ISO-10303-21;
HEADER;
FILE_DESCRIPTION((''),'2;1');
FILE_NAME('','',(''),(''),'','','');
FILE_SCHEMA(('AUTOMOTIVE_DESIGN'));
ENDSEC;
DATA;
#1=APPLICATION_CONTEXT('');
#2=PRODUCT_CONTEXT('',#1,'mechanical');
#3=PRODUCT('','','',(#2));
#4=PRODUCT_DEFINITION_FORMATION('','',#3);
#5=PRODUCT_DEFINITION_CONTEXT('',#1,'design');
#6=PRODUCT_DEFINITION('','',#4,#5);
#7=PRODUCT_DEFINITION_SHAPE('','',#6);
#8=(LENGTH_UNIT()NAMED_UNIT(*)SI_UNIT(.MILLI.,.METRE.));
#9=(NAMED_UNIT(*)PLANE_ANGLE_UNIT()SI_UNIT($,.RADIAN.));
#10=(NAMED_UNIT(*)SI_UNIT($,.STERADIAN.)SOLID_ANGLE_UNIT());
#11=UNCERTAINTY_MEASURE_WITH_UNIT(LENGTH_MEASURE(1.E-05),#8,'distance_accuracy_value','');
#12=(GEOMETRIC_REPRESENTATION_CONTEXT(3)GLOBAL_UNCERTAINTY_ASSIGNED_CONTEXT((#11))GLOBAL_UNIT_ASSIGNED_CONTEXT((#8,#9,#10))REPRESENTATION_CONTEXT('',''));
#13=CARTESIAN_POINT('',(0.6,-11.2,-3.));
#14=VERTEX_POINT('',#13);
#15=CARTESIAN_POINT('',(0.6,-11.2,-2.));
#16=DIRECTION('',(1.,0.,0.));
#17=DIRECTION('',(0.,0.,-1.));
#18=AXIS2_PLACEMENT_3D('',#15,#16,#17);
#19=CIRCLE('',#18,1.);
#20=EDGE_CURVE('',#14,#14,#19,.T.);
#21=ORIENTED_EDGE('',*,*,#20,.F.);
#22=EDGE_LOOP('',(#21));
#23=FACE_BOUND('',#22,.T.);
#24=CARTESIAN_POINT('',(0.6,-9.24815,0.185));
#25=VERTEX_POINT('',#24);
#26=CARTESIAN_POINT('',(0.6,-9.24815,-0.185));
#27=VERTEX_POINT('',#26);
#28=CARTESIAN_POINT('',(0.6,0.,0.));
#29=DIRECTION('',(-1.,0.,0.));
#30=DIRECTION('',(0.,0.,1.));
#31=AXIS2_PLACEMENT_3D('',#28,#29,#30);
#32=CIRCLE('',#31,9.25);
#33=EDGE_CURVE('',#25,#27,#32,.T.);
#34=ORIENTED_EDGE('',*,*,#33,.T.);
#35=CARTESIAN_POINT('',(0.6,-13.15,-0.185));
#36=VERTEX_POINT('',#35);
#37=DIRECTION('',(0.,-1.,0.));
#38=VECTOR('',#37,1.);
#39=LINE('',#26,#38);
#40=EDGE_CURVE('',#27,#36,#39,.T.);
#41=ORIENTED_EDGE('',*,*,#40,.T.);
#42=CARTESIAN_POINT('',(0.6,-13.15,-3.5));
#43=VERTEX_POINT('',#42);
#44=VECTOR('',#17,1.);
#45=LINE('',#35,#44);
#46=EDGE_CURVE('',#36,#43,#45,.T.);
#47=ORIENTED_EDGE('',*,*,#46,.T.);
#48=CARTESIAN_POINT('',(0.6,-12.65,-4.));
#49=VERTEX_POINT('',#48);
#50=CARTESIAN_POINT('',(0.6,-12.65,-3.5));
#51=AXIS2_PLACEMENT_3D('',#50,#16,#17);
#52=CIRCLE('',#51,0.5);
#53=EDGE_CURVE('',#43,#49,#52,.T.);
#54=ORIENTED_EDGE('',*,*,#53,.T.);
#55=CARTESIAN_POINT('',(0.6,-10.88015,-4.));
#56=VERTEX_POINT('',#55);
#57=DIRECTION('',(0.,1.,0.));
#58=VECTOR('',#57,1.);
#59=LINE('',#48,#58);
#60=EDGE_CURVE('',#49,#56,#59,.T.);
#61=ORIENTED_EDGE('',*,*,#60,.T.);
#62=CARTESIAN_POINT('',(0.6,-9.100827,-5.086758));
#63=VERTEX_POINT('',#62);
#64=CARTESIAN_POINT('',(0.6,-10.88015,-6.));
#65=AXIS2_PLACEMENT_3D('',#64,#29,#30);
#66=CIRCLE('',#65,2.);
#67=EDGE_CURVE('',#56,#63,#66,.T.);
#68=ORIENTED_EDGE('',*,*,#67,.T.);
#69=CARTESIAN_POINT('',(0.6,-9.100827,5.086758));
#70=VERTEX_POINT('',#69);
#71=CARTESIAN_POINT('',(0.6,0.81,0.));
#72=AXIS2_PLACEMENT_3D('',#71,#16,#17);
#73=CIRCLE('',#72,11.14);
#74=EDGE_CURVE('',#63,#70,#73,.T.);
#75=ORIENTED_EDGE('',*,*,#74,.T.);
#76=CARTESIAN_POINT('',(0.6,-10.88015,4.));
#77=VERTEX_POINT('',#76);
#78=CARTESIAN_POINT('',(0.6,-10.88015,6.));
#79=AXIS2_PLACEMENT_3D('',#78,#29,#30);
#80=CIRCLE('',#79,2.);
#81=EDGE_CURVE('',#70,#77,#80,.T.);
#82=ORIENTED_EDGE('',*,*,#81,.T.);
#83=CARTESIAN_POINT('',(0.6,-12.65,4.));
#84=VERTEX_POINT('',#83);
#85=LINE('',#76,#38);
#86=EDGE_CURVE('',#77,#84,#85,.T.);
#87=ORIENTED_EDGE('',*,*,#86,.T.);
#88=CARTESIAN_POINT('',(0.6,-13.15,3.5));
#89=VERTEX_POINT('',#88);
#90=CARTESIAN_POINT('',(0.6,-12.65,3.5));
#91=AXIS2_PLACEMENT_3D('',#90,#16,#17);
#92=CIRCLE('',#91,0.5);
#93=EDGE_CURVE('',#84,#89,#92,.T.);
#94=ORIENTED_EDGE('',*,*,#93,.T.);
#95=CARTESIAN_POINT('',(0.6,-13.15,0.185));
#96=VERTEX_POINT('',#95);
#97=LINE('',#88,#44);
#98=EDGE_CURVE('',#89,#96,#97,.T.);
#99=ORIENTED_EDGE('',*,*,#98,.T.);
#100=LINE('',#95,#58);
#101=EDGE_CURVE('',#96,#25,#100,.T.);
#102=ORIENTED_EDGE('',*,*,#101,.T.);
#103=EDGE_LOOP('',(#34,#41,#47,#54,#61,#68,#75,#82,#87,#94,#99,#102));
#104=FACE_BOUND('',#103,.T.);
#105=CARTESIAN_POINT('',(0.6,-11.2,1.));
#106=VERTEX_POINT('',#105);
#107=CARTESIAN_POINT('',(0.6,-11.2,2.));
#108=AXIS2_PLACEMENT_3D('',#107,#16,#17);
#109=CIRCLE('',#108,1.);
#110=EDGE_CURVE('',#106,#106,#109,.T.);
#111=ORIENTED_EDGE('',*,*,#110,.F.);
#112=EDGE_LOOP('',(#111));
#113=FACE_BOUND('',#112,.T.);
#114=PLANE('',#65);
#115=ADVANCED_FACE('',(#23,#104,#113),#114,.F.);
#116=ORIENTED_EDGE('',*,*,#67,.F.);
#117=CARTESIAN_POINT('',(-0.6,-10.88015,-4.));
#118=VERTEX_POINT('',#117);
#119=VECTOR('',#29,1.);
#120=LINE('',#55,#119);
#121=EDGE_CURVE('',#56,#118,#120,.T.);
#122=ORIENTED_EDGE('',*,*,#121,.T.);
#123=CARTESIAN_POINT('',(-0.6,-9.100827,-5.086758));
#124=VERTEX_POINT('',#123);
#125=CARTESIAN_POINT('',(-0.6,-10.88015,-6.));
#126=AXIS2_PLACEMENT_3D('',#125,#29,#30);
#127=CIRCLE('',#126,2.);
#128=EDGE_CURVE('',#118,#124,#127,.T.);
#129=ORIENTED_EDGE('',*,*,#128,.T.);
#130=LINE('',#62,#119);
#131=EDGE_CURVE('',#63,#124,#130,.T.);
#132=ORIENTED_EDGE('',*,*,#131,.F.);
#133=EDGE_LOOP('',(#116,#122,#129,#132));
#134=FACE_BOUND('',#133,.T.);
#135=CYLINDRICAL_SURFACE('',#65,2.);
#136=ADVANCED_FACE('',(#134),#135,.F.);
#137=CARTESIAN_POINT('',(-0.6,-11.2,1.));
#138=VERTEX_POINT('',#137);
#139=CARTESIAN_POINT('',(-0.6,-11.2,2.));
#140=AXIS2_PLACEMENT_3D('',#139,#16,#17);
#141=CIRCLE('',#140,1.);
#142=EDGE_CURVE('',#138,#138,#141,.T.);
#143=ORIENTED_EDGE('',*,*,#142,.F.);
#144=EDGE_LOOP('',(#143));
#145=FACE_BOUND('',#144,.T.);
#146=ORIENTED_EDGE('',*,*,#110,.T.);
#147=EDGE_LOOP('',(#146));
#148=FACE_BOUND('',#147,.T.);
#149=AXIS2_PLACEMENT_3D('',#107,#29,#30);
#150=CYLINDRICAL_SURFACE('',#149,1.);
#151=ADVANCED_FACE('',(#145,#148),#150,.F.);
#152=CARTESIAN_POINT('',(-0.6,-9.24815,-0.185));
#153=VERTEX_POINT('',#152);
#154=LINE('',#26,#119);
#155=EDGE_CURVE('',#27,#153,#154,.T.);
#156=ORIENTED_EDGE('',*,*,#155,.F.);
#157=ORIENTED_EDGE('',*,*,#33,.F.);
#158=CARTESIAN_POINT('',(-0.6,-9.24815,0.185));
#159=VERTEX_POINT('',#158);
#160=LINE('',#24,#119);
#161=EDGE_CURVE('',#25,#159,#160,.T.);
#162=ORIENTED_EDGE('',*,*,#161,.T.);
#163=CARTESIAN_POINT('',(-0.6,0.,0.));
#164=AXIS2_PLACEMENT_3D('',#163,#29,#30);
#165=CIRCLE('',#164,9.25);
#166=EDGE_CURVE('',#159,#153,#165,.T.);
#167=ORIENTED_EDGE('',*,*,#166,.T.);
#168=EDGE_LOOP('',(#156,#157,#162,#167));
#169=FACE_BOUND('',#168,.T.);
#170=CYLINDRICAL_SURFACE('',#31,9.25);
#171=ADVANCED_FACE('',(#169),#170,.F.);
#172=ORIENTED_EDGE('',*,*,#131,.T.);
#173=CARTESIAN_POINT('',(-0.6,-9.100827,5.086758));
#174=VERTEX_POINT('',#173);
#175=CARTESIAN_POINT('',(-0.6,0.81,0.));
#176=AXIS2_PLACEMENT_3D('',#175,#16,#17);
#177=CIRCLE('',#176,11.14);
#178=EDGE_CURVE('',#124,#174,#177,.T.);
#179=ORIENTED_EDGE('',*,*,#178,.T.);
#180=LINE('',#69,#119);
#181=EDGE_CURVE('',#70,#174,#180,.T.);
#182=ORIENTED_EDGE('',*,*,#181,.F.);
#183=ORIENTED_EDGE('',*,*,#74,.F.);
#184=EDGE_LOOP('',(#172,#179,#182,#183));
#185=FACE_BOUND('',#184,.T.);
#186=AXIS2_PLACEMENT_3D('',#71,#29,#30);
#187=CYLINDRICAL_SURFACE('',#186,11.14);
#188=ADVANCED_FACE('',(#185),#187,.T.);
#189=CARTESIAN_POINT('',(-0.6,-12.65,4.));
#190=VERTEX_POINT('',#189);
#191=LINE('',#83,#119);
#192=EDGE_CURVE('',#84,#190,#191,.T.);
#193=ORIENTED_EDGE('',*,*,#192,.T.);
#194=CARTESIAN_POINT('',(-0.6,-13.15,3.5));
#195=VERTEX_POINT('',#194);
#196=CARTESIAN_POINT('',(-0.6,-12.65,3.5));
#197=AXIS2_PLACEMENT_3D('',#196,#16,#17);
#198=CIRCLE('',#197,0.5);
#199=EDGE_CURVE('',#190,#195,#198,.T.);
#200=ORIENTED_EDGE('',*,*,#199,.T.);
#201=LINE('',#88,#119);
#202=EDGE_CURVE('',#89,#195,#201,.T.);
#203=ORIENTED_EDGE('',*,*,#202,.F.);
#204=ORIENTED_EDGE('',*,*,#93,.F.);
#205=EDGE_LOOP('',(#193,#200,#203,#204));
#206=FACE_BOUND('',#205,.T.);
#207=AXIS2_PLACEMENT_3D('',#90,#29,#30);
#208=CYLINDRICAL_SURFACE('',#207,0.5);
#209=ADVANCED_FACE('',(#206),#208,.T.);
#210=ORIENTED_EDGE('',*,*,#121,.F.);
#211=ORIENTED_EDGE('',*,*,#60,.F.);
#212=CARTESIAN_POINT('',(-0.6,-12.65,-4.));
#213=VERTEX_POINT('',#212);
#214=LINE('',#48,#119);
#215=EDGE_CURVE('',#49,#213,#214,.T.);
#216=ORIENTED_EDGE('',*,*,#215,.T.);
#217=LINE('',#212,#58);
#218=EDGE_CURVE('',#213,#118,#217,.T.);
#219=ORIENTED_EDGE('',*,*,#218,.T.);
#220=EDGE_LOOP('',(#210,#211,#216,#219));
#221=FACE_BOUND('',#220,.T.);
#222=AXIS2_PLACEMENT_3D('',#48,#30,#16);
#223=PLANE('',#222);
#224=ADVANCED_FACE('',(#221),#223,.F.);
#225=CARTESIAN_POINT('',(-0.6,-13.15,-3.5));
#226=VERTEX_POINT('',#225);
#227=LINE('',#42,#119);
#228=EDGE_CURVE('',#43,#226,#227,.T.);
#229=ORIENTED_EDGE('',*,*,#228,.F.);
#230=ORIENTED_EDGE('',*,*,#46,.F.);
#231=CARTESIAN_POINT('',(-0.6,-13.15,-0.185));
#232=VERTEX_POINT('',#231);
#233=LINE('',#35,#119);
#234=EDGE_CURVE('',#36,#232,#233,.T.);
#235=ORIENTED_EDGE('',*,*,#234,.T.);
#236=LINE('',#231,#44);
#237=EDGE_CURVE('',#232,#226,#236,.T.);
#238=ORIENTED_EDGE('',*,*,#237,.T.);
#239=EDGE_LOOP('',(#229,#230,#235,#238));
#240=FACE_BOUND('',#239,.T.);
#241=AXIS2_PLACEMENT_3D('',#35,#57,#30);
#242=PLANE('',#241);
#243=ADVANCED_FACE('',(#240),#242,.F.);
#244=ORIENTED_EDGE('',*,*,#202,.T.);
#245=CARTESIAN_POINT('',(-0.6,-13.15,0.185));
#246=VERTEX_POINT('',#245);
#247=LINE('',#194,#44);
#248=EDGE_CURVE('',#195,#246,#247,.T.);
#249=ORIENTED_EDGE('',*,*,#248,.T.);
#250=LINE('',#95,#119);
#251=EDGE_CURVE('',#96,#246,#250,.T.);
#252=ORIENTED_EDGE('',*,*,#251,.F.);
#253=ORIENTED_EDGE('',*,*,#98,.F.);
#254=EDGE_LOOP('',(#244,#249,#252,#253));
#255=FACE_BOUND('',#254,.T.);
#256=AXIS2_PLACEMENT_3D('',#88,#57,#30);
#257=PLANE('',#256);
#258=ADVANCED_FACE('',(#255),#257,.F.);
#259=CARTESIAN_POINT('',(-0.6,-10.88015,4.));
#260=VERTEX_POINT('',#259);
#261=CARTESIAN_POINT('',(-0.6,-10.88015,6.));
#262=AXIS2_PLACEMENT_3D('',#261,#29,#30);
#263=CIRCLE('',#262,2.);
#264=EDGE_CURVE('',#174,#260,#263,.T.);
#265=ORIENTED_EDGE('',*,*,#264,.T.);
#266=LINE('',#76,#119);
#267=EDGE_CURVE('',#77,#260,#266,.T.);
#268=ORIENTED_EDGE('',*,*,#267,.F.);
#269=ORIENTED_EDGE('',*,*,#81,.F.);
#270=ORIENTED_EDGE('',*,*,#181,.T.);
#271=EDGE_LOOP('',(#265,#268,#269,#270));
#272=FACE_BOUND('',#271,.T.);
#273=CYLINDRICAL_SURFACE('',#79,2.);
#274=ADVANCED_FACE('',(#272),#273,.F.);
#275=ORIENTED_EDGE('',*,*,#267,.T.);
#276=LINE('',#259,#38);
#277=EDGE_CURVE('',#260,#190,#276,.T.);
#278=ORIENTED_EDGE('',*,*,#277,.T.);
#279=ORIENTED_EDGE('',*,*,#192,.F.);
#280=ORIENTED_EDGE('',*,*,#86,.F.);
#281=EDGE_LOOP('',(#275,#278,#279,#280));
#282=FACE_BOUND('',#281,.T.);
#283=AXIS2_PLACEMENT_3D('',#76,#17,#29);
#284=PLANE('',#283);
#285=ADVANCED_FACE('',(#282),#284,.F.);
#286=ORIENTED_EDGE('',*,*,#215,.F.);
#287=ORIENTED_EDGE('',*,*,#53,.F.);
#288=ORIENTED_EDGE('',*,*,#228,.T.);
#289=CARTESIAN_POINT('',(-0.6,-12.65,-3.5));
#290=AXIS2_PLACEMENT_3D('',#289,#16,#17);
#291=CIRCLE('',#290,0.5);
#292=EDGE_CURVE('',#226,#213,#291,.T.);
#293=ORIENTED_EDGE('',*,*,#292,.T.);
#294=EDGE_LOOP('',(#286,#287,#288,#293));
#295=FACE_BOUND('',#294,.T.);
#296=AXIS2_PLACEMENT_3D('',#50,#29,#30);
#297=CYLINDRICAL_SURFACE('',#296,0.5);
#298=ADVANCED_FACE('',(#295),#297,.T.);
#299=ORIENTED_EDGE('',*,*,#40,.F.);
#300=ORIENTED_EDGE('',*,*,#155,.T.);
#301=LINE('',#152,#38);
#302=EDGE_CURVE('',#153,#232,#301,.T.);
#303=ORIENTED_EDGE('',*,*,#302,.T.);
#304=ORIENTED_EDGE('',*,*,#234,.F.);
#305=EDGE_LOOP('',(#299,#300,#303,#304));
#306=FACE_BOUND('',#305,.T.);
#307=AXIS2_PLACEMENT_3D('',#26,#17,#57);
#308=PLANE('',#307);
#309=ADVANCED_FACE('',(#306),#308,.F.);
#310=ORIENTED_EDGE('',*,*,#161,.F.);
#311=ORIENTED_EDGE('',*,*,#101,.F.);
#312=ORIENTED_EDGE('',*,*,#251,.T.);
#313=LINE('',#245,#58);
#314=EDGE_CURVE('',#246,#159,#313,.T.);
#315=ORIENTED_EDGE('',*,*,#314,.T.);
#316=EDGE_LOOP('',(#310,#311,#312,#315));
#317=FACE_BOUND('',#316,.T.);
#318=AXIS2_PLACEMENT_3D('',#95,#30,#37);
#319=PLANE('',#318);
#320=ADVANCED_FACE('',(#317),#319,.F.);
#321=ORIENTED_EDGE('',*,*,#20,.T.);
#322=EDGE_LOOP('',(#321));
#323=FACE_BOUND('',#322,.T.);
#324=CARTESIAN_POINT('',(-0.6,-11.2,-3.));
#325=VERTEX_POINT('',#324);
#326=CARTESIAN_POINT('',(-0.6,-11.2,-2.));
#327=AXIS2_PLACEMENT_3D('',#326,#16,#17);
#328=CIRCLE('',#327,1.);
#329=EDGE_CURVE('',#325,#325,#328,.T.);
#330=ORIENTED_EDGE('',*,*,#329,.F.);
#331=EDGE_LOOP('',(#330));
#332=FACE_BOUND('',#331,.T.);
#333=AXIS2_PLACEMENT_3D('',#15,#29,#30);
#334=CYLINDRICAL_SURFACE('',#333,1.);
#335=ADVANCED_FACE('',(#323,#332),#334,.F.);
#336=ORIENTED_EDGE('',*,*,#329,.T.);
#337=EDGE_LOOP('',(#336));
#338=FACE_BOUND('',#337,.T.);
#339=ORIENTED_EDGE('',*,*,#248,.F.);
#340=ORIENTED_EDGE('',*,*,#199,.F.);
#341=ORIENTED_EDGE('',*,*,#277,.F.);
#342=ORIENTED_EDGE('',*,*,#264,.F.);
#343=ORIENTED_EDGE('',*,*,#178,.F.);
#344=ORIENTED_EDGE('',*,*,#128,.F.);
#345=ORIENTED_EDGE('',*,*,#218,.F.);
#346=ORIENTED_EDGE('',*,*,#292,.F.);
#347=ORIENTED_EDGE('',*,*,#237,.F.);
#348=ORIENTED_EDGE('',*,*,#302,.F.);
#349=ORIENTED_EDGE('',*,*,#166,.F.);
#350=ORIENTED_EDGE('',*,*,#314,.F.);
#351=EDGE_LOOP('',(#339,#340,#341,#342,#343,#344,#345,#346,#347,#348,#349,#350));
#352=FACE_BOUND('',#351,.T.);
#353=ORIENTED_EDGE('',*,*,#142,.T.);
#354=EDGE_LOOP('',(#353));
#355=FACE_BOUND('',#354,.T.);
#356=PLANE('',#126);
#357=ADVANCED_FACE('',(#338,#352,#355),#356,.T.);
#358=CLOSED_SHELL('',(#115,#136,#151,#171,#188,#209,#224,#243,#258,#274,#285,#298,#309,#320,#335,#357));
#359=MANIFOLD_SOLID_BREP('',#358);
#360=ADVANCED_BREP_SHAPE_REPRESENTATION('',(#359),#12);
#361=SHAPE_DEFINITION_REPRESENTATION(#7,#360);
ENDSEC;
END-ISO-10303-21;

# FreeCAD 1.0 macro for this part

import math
import FreeCAD as App
import Part
import Sketcher
from FreeCAD import Vector

doc = App.newDocument("Part")
body = doc.addObject("PartDesign::Body", "Body")

# Sketch on YZ plane
sketch1 = body.newObject("Sketcher::SketchObject", "Sketch")
sketch1.AttachmentSupport = (doc.getObject("YZ_Plane"), [""])
sketch1.MapMode = "FlatFace"
sketch1.addGeometry(Part.LineSegment(Vector(-10.88015, 4, 0), Vector(-12.65, 4, 0)), False)
sketch1.addGeometry(Part.ArcOfCircle(Part.Circle(Vector(-12.65, 3.5, 0), Vector(0, 0, 1), 0.5), math.radians(90), math.radians(180)), False)
sketch1.addGeometry(Part.LineSegment(Vector(-13.15, 3.5, 0), Vector(-13.15, 0.185, 0)), False)
sketch1.addGeometry(Part.LineSegment(Vector(-13.15, 0.185, 0), Vector(-9.24815, 0.185, 0)), False)
sketch1.addGeometry(Part.ArcOfCircle(Part.Circle(Vector(0, 0, 0), Vector(0, 0, 1), 9.25), math.radians(-178.854008), math.radians(178.854008)), False)
sketch1.addGeometry(Part.LineSegment(Vector(-9.24815, -0.185, 0), Vector(-13.15, -0.185, 0)), False)
sketch1.addGeometry(Part.LineSegment(Vector(-13.15, -0.185, 0), Vector(-13.15, -3.5, 0)), False)
sketch1.addGeometry(Part.ArcOfCircle(Part.Circle(Vector(-12.65, -3.5, 0), Vector(0, 0, 1), 0.5), math.radians(180), math.radians(270)), False)
sketch1.addGeometry(Part.LineSegment(Vector(-12.65, -4, 0), Vector(-10.88015, -4, 0)), False)
sketch1.addGeometry(Part.ArcOfCircle(Part.Circle(Vector(-10.88015, -6, 0), Vector(0, 0, 1), 2), math.radians(27.169279), math.radians(90)), False)
sketch1.addGeometry(Part.ArcOfCircle(Part.Circle(Vector(0.81, 0, 0), Vector(0, 0, 1), 11.14), math.radians(-152.830718), math.radians(152.830718)), False)
sketch1.addGeometry(Part.ArcOfCircle(Part.Circle(Vector(-10.88015, 6, 0), Vector(0, 0, 1), 2), math.radians(-90), math.radians(-27.169275)), False)
sketch1.addGeometry(Part.Circle(Vector(-11.2, 2, 0), Vector(0, 0, 1), 1), False)
sketch1.addGeometry(Part.Circle(Vector(-11.2, -2, 0), Vector(0, 0, 1), 1), False)
sketch1.addConstraint(Sketcher.Constraint("Tangent", 0, 2, 1, 1))
sketch1.addConstraint(Sketcher.Constraint("Tangent", 1, 2, 2, 1))
sketch1.addConstraint(Sketcher.Constraint("Coincident", 2, 2, 3, 1))
sketch1.addConstraint(Sketcher.Constraint("Coincident", 3, 2, 4, 2))
sketch1.addConstraint(Sketcher.Constraint("Coincident", 4, 1, 5, 1))
sketch1.addConstraint(Sketcher.Constraint("Coincident", 5, 2, 6, 1))
sketch1.addConstraint(Sketcher.Constraint("Tangent", 6, 2, 7, 1))
sketch1.addConstraint(Sketcher.Constraint("Tangent", 7, 2, 8, 1))
sketch1.addConstraint(Sketcher.Constraint("Tangent", 8, 2, 9, 2))
sketch1.addConstraint(Sketcher.Constraint("Tangent", 9, 1, 10, 1))
sketch1.addConstraint(Sketcher.Constraint("Tangent", 10, 2, 11, 2))
sketch1.addConstraint(Sketcher.Constraint("Tangent", 11, 1, 0, 1))
sketch1.addConstraint(Sketcher.Constraint("Horizontal", 0))
sketch1.addConstraint(Sketcher.Constraint("Vertical", 2))
sketch1.addConstraint(Sketcher.Constraint("Horizontal", 3))
sketch1.addConstraint(Sketcher.Constraint("Horizontal", 5))
sketch1.addConstraint(Sketcher.Constraint("Vertical", 6))
sketch1.addConstraint(Sketcher.Constraint("Horizontal", 8))
sketch1.addConstraint(Sketcher.Constraint("Coincident", 4, 3, -1, 1))
sketch1.addConstraint(Sketcher.Constraint("Equal", 1, 7))
sketch1.addConstraint(Sketcher.Constraint("Equal", 9, 11))
sketch1.addConstraint(Sketcher.Constraint("Equal", 12, 13))
sketch1.addConstraint(Sketcher.Constraint("Symmetric", 1, 3, 7, 3, -1))
sketch1.addConstraint(Sketcher.Constraint("Symmetric", 12, 3, 13, 3, -1))
sketch1.addConstraint(Sketcher.Constraint("PointOnObject", 10, 3, -1))
sketch1.addConstraint(Sketcher.Constraint("Vertical", 3, 2, 4, 1))
sketch1.addConstraint(Sketcher.Constraint("Diameter", 12, 2.0))
sketch1.addConstraint(Sketcher.Constraint("Radius", 9, 2.0))
sketch1.addConstraint(Sketcher.Constraint("Radius", 1, 0.5))
sketch1.addConstraint(Sketcher.Constraint("Radius", 4, 9.25))
sketch1.addConstraint(Sketcher.Constraint("Radius", 10, 11.14))
sketch1.addConstraint(Sketcher.Constraint("DistanceY", 9, 3, -1, 1, 6.0))
sketch1.addConstraint(Sketcher.Constraint("DistanceY", -1, 1, 12, 3, 2.0))
sketch1.addConstraint(Sketcher.Constraint("DistanceX", 12, 3, -1, 1, 11.2))
sketch1.addConstraint(Sketcher.Constraint("DistanceY", 2, 2, 2, 1, 3.315))
sketch1.addConstraint(Sketcher.Constraint("DistanceX", 1, 3, -1, 1, 12.65))
sketch1.addConstraint(Sketcher.Constraint("DistanceX", -1, 1, 10, 3, 0.81))
pad1 = body.newObject("PartDesign::Pad", "Pad")
pad1.Profile = sketch1
pad1.Type = "TwoLengths"
pad1.Length = 0.6
pad1.Length2 = 0.6

doc.recompute()
